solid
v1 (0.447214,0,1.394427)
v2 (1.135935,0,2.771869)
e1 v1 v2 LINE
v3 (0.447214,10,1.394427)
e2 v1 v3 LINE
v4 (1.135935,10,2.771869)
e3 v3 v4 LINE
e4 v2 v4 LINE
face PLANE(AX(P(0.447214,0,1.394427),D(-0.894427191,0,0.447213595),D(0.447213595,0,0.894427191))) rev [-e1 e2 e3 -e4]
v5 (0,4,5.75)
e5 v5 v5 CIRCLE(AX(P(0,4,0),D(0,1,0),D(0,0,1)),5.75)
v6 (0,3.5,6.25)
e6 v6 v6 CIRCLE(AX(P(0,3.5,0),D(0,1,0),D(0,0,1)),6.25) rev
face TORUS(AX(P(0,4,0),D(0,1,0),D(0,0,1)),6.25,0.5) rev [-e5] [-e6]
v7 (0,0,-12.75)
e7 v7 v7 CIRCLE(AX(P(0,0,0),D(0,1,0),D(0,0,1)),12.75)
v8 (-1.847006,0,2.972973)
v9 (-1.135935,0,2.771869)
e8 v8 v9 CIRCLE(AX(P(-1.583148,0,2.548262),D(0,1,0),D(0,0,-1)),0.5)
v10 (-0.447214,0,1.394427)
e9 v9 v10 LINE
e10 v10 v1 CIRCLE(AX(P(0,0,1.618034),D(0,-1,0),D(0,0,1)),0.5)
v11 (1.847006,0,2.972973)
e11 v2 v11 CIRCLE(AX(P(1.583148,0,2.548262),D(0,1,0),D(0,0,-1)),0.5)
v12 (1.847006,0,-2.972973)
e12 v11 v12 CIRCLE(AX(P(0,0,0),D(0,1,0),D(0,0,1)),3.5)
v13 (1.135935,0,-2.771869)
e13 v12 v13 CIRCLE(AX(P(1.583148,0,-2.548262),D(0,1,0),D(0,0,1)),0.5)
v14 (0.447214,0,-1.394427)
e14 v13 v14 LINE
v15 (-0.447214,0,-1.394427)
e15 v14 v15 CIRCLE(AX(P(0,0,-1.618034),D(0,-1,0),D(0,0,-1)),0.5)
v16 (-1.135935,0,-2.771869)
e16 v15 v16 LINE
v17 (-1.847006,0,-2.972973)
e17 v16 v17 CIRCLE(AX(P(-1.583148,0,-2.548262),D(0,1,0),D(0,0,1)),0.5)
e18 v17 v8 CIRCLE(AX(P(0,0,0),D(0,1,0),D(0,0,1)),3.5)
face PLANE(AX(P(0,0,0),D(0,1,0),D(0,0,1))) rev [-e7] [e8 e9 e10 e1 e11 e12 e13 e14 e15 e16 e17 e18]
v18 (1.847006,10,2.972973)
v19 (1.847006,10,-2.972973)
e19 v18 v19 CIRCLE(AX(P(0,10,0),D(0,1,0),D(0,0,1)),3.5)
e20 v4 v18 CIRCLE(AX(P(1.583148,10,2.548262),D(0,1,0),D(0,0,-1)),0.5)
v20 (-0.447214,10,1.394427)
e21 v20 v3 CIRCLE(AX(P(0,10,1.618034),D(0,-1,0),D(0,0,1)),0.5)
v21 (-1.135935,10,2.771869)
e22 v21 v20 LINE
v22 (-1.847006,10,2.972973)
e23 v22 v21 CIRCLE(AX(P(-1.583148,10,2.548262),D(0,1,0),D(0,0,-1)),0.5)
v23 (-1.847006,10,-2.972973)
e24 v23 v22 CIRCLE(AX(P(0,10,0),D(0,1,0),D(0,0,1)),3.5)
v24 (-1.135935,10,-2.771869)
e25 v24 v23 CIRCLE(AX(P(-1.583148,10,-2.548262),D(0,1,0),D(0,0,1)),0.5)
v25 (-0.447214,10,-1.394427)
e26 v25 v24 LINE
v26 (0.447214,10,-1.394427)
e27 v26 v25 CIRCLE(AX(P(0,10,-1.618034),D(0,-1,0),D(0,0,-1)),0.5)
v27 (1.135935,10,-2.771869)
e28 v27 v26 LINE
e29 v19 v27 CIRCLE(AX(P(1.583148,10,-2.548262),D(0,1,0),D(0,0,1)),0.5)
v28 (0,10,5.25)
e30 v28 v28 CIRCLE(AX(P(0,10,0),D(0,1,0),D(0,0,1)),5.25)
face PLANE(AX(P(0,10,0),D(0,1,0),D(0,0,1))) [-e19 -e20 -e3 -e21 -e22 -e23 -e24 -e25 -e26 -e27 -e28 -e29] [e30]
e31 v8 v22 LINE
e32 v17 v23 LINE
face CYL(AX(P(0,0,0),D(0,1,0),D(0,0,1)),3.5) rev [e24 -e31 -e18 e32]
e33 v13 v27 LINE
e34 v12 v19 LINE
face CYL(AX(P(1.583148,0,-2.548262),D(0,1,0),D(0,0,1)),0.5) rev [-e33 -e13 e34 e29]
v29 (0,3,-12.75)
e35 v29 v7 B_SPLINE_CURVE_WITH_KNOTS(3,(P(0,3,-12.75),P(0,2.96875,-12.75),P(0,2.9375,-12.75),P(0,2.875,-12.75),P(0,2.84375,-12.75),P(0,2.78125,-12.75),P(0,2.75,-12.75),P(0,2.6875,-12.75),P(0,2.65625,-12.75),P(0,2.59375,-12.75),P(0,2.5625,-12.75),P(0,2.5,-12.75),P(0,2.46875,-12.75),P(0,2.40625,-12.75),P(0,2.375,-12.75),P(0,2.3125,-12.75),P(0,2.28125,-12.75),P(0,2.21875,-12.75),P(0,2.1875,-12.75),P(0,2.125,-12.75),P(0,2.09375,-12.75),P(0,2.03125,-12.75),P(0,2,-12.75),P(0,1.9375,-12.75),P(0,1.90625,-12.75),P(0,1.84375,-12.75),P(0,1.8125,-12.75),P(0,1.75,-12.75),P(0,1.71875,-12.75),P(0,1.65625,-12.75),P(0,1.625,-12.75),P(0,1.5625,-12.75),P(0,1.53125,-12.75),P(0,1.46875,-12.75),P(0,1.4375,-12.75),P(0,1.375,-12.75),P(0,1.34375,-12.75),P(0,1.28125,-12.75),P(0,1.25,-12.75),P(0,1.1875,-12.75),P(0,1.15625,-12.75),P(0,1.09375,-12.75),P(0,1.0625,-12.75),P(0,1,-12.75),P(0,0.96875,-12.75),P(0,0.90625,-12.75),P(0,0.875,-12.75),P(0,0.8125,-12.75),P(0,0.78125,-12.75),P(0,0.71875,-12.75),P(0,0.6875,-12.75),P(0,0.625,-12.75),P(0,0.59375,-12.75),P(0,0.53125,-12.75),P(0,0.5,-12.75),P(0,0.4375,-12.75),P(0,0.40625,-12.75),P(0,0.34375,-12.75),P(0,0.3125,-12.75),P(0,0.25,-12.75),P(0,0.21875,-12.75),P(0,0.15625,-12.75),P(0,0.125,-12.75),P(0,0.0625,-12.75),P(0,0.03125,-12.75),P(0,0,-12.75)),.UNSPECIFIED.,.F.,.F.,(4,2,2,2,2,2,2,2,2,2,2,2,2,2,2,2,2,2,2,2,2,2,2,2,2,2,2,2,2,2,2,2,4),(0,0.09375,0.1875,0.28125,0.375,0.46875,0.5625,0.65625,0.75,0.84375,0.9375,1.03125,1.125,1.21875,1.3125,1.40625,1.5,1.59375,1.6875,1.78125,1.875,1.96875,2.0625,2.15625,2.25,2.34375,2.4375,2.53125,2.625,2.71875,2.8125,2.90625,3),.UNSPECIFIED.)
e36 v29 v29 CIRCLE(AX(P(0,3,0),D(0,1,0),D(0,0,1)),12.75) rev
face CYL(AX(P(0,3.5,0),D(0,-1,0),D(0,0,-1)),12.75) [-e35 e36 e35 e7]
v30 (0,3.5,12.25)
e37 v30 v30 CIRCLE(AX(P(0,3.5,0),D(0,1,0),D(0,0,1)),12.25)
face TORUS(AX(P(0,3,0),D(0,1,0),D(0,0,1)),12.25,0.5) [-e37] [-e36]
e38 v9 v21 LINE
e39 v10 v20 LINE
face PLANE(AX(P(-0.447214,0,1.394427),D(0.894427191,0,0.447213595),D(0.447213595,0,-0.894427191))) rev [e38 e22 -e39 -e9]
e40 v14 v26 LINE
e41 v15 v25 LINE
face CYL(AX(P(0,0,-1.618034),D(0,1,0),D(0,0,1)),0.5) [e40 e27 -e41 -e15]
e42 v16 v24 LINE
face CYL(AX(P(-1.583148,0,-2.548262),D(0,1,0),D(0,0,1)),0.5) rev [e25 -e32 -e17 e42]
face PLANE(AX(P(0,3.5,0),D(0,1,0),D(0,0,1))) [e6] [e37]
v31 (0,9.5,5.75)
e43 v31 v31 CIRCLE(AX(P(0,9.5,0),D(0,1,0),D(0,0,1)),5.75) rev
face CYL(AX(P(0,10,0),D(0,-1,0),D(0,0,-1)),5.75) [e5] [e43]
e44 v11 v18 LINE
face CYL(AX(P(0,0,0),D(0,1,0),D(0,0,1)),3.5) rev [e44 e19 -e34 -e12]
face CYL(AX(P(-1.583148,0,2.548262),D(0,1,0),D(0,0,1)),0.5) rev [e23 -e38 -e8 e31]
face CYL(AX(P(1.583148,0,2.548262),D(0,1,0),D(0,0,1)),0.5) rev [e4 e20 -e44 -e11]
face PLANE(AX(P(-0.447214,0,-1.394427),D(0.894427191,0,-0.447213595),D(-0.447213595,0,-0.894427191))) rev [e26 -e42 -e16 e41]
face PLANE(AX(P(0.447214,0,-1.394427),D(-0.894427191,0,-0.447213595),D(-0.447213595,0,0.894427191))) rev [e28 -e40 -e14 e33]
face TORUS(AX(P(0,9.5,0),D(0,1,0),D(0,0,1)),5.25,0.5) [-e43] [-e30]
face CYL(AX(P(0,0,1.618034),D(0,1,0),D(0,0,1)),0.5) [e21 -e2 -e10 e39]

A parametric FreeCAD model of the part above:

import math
import FreeCAD as App
import Part
import Sketcher

V = App.Vector
Q = App.Units.Quantity


def edges_at(feature, points):
    """Names of the edges that pass closest to the given points."""
    edges = feature.Shape.Edges
    near = lambda p: min(range(len(edges)), key=lambda i: edges[i].distToShape(Part.Vertex(*p))[0])
    return sorted({f"Edge{near(p) + 1}" for p in points})

doc = App.newDocument("Part")
params = doc.addObject("Spreadsheet::Sheet", "Params")
for row, (alias, value) in enumerate([
    ("sketch1_diameter", "25.5 mm"),
    ("pad1_length", "3.5 mm"),
    ("sketch2_diameter", "11.5 mm"),
    ("pad2_length", "6.5 mm"),
    ("sketch3_radius", "0.5 mm"),
    ("sketch3_radius2", "3.5 mm"),
    ("pocket1_length", "10 mm"),
    ("fillet_radius", "0.5 mm"),
    ("fillet2_radius", "0.5 mm"),
], start=1):
    params.set(f"A{row}", alias)
    params.set(f"B{row}", "=" + value)
    params.setAlias(f"B{row}", alias)

body = doc.addObject("PartDesign::Body", "Body")

# Sketch on XZ plane
sketch1 = body.newObject("Sketcher::SketchObject", "Sketch")
sketch1.AttachmentSupport = (doc.getObject("XZ_Plane"), [""])
sketch1.MapMode = "FlatFace"
sketch1.addGeometry(Part.Circle(V(0, 0, 0), V(0, 0, 1), 12.75), False)
sketch1.addConstraint(Sketcher.Constraint("Coincident", 0, 3, -1, 1))
sketch1.addConstraint(Sketcher.Constraint("Diameter", 0, Q("25.5 mm")))
sketch1.setExpression("Constraints[1]", "Params.sketch1_diameter")
pad1 = body.newObject("PartDesign::Pad", "Pad")
pad1.Profile = sketch1
pad1.setExpression("Length", "Params.pad1_length")
pad1.Reversed = True

# Sketch on XZ plane
sketch2 = body.newObject("Sketcher::SketchObject", "Sketch001")
sketch2.AttachmentSupport = (doc.getObject("XZ_Plane"), [""])
sketch2.MapMode = "FlatFace"
sketch2.AttachmentOffset = App.Placement(V(0, 0, -3.5), App.Rotation())
sketch2.addGeometry(Part.Circle(V(0, 0, 0), V(0, 0, 1), 5.75), False)
sketch2.addConstraint(Sketcher.Constraint("Coincident", 0, 3, -1, 1))
sketch2.addConstraint(Sketcher.Constraint("Diameter", 0, Q("11.5 mm")))
sketch2.setExpression("Constraints[1]", "Params.sketch2_diameter")
pad2 = body.newObject("PartDesign::Pad", "Pad001")
pad2.Profile = sketch2
pad2.setExpression("Length", "Params.pad2_length")
pad2.Reversed = True

# Sketch on XZ plane
sketch3 = body.newObject("Sketcher::SketchObject", "Sketch002")
sketch3.AttachmentSupport = (doc.getObject("XZ_Plane"), [""])
sketch3.MapMode = "FlatFace"
sketch3.AttachmentOffset = App.Placement(V(0, 0, -10), App.Rotation())
sketch3.addGeometry(Part.LineSegment(V(-0.447214, -1.394427, 0), V(-1.135935, -2.771869, 0)), False)
sketch3.addGeometry(Part.ArcOfCircle(Part.Circle(V(-1.583148, -2.548262, 0), V(0, 0, 1), 0.5), math.radians(-121.851269), math.radians(-26.565051)), False)
sketch3.addGeometry(Part.ArcOfCircle(Part.Circle(V(0, 0, 0), V(0, 0, 1), 3.5), math.radians(121.851269), math.radians(238.148731)), False)
sketch3.addGeometry(Part.ArcOfCircle(Part.Circle(V(-1.583148, 2.548262, 0), V(0, 0, 1), 0.5), math.radians(26.565051), math.radians(121.851269)), False)
sketch3.addGeometry(Part.LineSegment(V(-1.135935, 2.771869, 0), V(-0.447214, 1.394427, 0)), False)
sketch3.addGeometry(Part.ArcOfCircle(Part.Circle(V(0, 1.618034, 0), V(0, 0, 1), 0.5), math.radians(-153.434949), math.radians(-26.565051)), False)
sketch3.addGeometry(Part.LineSegment(V(0.447214, 1.394427, 0), V(1.135935, 2.771869, 0)), False)
sketch3.addGeometry(Part.ArcOfCircle(Part.Circle(V(1.583148, 2.548262, 0), V(0, 0, 1), 0.5), math.radians(58.148731), math.radians(153.434949)), False)
sketch3.addGeometry(Part.ArcOfCircle(Part.Circle(V(0, 0, 0), V(0, 0, 1), 3.5), math.radians(-58.148731), math.radians(58.148731)), False)
sketch3.addGeometry(Part.ArcOfCircle(Part.Circle(V(1.583148, -2.548262, 0), V(0, 0, 1), 0.5), math.radians(-153.434949), math.radians(-58.148731)), False)
sketch3.addGeometry(Part.LineSegment(V(1.135935, -2.771869, 0), V(0.447214, -1.394427, 0)), False)
sketch3.addGeometry(Part.ArcOfCircle(Part.Circle(V(0, -1.618034, 0), V(0, 0, 1), 0.5), math.radians(26.565051), math.radians(153.434949)), False)
sketch3.addConstraint(Sketcher.Constraint("Tangent", 0, 2, 1, 2))
sketch3.addConstraint(Sketcher.Constraint("Tangent", 1, 1, 2, 2))
sketch3.addConstraint(Sketcher.Constraint("Tangent", 2, 1, 3, 2))
sketch3.addConstraint(Sketcher.Constraint("Tangent", 3, 1, 4, 1))
sketch3.addConstraint(Sketcher.Constraint("Tangent", 4, 2, 5, 1))
sketch3.addConstraint(Sketcher.Constraint("Tangent", 5, 2, 6, 1))
sketch3.addConstraint(Sketcher.Constraint("Tangent", 6, 2, 7, 2))
sketch3.addConstraint(Sketcher.Constraint("Tangent", 7, 1, 8, 2))
sketch3.addConstraint(Sketcher.Constraint("Tangent", 8, 1, 9, 2))
sketch3.addConstraint(Sketcher.Constraint("Tangent", 9, 1, 10, 1))
sketch3.addConstraint(Sketcher.Constraint("Tangent", 10, 2, 11, 1))
sketch3.addConstraint(Sketcher.Constraint("Tangent", 11, 2, 0, 1))
sketch3.addConstraint(Sketcher.Constraint("Coincident", 2, 3, -1, 1))
sketch3.addConstraint(Sketcher.Constraint("Coincident", 8, 3, -1, 1))
sketch3.addConstraint(Sketcher.Constraint("Equal", 1, 3))
sketch3.addConstraint(Sketcher.Constraint("Equal", 3, 5))
sketch3.addConstraint(Sketcher.Constraint("Equal", 5, 7))
sketch3.addConstraint(Sketcher.Constraint("Equal", 2, 8))
sketch3.addConstraint(Sketcher.Constraint("Equal", 7, 9))
sketch3.addConstraint(Sketcher.Constraint("Equal", 9, 11))
sketch3.addConstraint(Sketcher.Constraint("Symmetric", 5, 3, 11, 3, -1, 1))
sketch3.addConstraint(Sketcher.Constraint("Symmetric", 4, 2, 5, 2, -2))
sketch3.addConstraint(Sketcher.Constraint("Parallel", 0, 6))
sketch3.addConstraint(Sketcher.Constraint("Parallel", 4, 10))
sketch3.addConstraint(Sketcher.Constraint("Radius", 1, Q("0.5 mm")))
sketch3.addConstraint(Sketcher.Constraint("Radius", 2, Q("3.5 mm")))
sketch3.addConstraint(Sketcher.Constraint("DistanceX", 1, 3, -1, 1, Q("1.583148 mm")))
sketch3.addConstraint(Sketcher.Constraint("DistanceY", 0, 2, -1, 1, Q("2.771869 mm")))
sketch3.setExpression("Constraints[24]", "Params.sketch3_radius")
sketch3.setExpression("Constraints[25]", "Params.sketch3_radius2")
pocket1 = body.newObject("PartDesign::Pocket", "Pocket")
pocket1.Profile = sketch3
pocket1.setExpression("Length", "Params.pocket1_length")
pocket1.Reversed = True
doc.recompute()

fillet = body.newObject("PartDesign::Fillet", "Fillet")
fillet.Base = (pocket1, edges_at(pocket1, [(0, 3.5, 12.75), (0, 3.5, -5.75)]))
fillet.setExpression("Radius", "Params.fillet_radius")
doc.recompute()

fillet2 = body.newObject("PartDesign::Fillet", "Fillet001")
fillet2.Base = (fillet, edges_at(fillet, [(0, 10, -5.75)]))
fillet2.setExpression("Radius", "Params.fillet2_radius")

doc.recompute()
